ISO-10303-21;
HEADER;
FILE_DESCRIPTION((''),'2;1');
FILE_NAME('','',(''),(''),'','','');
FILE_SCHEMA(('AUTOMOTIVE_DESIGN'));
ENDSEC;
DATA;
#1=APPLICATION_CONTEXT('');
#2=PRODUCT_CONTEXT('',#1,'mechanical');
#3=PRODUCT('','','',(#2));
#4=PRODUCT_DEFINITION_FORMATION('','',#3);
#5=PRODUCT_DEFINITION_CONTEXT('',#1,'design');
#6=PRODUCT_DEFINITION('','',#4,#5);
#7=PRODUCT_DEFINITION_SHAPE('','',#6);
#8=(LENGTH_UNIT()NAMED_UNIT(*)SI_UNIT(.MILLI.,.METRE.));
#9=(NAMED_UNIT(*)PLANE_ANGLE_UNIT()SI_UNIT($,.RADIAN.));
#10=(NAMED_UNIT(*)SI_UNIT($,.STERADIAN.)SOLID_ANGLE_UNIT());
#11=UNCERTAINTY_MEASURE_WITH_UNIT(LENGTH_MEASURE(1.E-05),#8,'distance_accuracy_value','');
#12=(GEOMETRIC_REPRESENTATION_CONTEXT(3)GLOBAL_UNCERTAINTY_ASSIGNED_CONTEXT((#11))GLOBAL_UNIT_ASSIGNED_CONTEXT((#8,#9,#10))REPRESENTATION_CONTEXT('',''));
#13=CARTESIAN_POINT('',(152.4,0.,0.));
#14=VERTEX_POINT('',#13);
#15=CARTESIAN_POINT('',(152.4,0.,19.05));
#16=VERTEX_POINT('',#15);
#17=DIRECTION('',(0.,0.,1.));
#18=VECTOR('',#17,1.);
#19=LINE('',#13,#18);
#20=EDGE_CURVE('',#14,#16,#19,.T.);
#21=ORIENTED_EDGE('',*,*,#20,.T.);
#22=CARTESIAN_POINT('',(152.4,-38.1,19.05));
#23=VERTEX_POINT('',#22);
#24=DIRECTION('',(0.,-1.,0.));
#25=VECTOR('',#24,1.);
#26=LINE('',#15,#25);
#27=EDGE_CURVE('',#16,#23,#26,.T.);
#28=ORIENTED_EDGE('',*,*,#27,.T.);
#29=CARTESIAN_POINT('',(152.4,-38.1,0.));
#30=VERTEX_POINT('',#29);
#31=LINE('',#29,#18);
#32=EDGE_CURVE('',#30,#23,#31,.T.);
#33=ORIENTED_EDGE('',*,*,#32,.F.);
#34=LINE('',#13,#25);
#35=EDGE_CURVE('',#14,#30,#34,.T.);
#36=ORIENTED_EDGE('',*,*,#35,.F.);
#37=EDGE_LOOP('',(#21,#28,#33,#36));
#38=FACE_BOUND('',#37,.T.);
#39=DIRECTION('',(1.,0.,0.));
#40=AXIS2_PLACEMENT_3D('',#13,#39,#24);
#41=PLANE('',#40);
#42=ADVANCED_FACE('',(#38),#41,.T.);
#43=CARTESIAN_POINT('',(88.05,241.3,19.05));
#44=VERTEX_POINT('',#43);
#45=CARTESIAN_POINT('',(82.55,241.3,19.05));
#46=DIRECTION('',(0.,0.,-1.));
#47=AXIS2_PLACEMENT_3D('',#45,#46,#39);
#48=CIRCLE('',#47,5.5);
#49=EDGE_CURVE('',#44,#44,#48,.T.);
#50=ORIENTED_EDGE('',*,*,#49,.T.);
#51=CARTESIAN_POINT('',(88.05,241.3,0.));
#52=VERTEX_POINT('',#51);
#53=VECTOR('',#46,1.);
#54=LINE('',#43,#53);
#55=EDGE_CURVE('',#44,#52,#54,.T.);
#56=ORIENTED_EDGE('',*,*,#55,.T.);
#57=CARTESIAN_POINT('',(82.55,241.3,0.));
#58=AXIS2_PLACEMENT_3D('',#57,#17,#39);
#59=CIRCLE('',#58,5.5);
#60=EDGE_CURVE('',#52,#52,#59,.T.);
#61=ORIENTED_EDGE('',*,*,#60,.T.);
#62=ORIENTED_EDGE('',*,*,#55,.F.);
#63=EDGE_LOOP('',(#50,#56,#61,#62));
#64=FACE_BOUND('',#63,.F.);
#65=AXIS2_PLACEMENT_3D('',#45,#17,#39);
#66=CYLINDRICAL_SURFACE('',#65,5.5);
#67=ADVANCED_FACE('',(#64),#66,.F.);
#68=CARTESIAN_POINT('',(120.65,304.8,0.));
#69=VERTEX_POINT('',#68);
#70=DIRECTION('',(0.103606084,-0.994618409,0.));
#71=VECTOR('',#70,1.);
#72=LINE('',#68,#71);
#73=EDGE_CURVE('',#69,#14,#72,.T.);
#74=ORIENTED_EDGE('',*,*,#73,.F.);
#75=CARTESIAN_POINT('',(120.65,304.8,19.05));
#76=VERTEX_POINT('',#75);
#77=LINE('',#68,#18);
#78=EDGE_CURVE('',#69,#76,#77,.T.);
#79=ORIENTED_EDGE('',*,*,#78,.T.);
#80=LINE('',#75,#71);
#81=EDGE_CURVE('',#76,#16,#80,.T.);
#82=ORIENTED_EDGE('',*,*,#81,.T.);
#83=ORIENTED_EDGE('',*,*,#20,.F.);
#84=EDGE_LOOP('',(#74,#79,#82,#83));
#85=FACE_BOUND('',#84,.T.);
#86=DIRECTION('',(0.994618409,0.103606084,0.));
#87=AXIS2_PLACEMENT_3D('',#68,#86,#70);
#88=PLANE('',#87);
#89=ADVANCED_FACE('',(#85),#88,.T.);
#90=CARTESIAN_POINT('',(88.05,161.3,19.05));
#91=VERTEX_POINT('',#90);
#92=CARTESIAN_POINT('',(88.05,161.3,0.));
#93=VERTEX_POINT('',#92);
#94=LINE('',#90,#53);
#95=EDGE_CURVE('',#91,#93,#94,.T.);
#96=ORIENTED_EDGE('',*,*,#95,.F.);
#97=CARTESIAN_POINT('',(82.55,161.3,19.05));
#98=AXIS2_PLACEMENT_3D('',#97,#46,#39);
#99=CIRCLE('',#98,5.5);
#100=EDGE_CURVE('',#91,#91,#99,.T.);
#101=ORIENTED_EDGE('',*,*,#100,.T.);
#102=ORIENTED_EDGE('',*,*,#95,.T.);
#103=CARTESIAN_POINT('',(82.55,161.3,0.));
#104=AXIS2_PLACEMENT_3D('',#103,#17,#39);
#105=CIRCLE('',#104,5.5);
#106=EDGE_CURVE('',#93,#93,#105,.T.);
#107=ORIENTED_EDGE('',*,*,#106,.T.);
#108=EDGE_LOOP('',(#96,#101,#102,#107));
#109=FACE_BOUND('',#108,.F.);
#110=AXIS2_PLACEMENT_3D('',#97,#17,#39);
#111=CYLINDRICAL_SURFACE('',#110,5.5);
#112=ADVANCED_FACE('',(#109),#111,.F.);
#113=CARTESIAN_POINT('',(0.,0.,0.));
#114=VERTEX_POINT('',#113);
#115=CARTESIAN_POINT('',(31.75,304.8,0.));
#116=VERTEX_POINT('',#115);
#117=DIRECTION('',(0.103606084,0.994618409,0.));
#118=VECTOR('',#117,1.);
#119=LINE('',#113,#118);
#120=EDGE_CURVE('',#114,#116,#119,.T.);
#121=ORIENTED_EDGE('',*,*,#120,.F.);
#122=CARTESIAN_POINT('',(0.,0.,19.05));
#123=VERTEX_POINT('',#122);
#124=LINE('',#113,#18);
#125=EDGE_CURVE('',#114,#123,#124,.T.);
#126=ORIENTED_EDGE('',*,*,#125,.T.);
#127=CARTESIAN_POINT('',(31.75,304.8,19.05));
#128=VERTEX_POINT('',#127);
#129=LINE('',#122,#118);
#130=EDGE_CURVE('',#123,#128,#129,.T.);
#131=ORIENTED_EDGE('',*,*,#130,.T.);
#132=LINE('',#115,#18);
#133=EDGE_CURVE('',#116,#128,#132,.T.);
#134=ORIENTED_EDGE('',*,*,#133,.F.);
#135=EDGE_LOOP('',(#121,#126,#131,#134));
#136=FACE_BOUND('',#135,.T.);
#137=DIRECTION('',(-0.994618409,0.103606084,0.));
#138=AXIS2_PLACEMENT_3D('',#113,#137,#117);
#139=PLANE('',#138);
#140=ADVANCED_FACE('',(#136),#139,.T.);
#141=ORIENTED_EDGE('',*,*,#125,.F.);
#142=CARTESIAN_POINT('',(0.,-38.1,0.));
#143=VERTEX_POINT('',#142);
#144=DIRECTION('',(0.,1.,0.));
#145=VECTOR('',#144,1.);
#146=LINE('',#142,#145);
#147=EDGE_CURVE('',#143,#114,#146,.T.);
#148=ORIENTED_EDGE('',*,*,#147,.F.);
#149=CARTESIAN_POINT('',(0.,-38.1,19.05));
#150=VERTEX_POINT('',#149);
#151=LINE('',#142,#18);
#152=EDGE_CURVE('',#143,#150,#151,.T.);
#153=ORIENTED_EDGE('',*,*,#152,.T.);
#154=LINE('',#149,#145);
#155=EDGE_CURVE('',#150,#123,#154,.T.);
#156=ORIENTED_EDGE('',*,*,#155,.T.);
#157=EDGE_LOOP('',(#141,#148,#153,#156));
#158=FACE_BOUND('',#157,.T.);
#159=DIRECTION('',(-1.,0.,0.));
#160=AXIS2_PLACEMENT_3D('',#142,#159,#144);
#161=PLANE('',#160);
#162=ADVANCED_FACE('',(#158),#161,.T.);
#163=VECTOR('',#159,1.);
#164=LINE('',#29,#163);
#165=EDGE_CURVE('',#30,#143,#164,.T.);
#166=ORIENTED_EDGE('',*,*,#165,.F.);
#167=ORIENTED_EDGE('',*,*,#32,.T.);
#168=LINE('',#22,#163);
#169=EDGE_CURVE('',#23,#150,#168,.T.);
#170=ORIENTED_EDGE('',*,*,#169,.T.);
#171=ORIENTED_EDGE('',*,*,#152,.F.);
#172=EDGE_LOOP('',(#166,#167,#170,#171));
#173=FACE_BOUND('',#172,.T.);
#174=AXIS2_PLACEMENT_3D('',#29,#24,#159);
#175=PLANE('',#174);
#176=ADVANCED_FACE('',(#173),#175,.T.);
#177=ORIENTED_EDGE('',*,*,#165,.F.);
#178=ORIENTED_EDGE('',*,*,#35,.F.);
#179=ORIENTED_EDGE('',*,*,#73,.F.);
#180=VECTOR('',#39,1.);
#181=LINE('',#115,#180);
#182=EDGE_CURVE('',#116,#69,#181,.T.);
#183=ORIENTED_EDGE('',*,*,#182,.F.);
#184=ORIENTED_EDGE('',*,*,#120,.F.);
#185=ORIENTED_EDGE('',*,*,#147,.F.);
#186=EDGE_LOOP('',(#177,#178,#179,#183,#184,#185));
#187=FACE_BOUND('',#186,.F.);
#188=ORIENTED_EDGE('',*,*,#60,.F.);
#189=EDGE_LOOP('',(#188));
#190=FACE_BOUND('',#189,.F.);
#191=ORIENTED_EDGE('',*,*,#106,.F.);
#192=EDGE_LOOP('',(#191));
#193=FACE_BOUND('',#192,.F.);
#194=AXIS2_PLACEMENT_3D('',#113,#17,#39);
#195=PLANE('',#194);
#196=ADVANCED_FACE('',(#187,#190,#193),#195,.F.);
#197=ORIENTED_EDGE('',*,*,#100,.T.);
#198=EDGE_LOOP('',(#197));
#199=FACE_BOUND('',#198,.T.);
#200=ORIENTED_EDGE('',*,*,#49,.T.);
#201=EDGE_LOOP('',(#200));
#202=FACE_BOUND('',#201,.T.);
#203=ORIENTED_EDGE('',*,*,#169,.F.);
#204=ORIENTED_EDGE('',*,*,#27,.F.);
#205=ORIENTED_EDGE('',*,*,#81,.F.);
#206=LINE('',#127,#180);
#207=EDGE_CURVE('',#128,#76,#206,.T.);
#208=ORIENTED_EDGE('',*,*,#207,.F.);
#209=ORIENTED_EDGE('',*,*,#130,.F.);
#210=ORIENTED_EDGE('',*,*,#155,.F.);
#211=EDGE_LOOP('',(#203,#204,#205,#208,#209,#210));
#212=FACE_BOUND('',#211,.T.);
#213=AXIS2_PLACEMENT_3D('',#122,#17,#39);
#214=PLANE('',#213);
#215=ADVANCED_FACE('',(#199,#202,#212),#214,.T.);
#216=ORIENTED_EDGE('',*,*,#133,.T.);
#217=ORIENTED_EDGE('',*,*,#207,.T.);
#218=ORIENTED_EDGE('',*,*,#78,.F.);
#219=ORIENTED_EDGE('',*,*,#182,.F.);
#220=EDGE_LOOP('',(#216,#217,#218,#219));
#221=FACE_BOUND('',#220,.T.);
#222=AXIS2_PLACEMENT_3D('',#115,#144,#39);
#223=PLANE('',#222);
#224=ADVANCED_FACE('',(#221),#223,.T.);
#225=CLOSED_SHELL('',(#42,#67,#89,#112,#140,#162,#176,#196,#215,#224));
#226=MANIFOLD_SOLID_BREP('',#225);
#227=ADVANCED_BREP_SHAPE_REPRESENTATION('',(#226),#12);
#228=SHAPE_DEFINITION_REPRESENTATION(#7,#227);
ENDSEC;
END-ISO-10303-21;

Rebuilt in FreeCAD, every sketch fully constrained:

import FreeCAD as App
import Part
import Sketcher
from FreeCAD import Vector
Q = App.Units.Quantity

doc = App.newDocument("Part")
params = doc.addObject("Spreadsheet::Sheet", "Params")
for row, (alias, value) in enumerate([
    ("sketch1_width", "6 in"),
    ("sketch1_width2", "3.5 in"),
    ("sketch1_height", "1.5 in"),
    ("pad1_length", "0.75 in"),
    ("pocket1_length", "0.75 in"),
], start=1):
    params.set(f"A{row}", alias)
    params.set(f"B{row}", "=" + value)
    params.setAlias(f"B{row}", alias)

body = doc.addObject("PartDesign::Body", "Body")

sketch1 = body.newObject("Sketcher::SketchObject", "Sketch")
sketch1.AttachmentSupport = (doc.getObject("XY_Plane"), [""])
sketch1.MapMode = "FlatFace"
sketch1.addGeometry(Part.LineSegment(Vector(32, 305, 0), Vector(0, 0, 0)), False)
sketch1.addGeometry(Part.LineSegment(Vector(0, 0, 0), Vector(0, -38, 0)), False)
sketch1.addGeometry(Part.LineSegment(Vector(0, -38, 0), Vector(152, -38, 0)), False)
sketch1.addGeometry(Part.LineSegment(Vector(152, -38, 0), Vector(152, 0, 0)), False)
sketch1.addGeometry(Part.LineSegment(Vector(152, 0, 0), Vector(121, 305, 0)), False)
sketch1.addGeometry(Part.LineSegment(Vector(121, 305, 0), Vector(32, 305, 0)), False)
sketch1.addConstraint(Sketcher.Constraint("Coincident", 0, 2, 1, 1))
sketch1.addConstraint(Sketcher.Constraint("Coincident", 1, 2, 2, 1))
sketch1.addConstraint(Sketcher.Constraint("Coincident", 2, 2, 3, 1))
sketch1.addConstraint(Sketcher.Constraint("Coincident", 3, 2, 4, 1))
sketch1.addConstraint(Sketcher.Constraint("Coincident", 4, 2, 5, 1))
sketch1.addConstraint(Sketcher.Constraint("Coincident", 5, 2, 0, 1))
sketch1.addConstraint(Sketcher.Constraint("Vertical", 1))
sketch1.addConstraint(Sketcher.Constraint("Horizontal", 2))
sketch1.addConstraint(Sketcher.Constraint("Vertical", 3))
sketch1.addConstraint(Sketcher.Constraint("Horizontal", 5))
sketch1.addConstraint(Sketcher.Constraint("Coincident", 0, 2, -1, 1))
sketch1.addConstraint(Sketcher.Constraint("PointOnObject", 3, 2, -1))
sketch1.addConstraint(Sketcher.Constraint("Equal", 0, 4))
sketch1.addConstraint(Sketcher.Constraint("DistanceX", 2, 1, 2, 2, Q("6 in")))
sketch1.addConstraint(Sketcher.Constraint("DistanceX", 5, 2, 5, 1, Q("3.5 in")))
sketch1.addConstraint(Sketcher.Constraint("DistanceY", 1, 2, 1, 1, Q("1.5 in")))
sketch1.addConstraint(Sketcher.Constraint("DistanceY", -1, 1, 4, 2, Q("12 in")))
sketch1.setExpression("Constraints[13]", "Params.sketch1_width")
sketch1.setExpression("Constraints[14]", "Params.sketch1_width2")
sketch1.setExpression("Constraints[15]", "Params.sketch1_height")
pad1 = body.newObject("PartDesign::Pad", "Pad")
pad1.Profile = sketch1
pad1.setExpression("Length", "Params.pad1_length")

sketch2 = body.newObject("Sketcher::SketchObject", "Sketch001")
sketch2.AttachmentSupport = (doc.getObject("XY_Plane"), [""])
sketch2.MapMode = "FlatFace"
sketch2.AttachmentOffset = App.Placement(Vector(0, 0, 0.75 * 25.4), App.Rotation())
sketch2.addGeometry(Part.Circle(Vector(83, 241, 0), Vector(0, 0, 1), 6), False)
sketch2.addGeometry(Part.Circle(Vector(83, 161, 0), Vector(0, 0, 1), 6), False)
sketch2.addConstraint(Sketcher.Constraint("Equal", 0, 1))
sketch2.addConstraint(Sketcher.Constraint("Vertical", 0, 3, 1, 3))
sketch2.addConstraint(Sketcher.Constraint("Diameter", 0, 11.0))
sketch2.addConstraint(Sketcher.Constraint("DistanceY", -1, 1, 0, 3, Q("9.5 in")))
sketch2.addConstraint(Sketcher.Constraint("DistanceY", 1, 3, 0, 3, Q("3.1496 in")))
sketch2.addConstraint(Sketcher.Constraint("DistanceX", -1, 1, 0, 3, Q("3.25 in")))
pocket1 = body.newObject("PartDesign::Pocket", "Pocket")
pocket1.Profile = sketch2
pocket1.setExpression("Length", "Params.pocket1_length")

doc.recompute()
